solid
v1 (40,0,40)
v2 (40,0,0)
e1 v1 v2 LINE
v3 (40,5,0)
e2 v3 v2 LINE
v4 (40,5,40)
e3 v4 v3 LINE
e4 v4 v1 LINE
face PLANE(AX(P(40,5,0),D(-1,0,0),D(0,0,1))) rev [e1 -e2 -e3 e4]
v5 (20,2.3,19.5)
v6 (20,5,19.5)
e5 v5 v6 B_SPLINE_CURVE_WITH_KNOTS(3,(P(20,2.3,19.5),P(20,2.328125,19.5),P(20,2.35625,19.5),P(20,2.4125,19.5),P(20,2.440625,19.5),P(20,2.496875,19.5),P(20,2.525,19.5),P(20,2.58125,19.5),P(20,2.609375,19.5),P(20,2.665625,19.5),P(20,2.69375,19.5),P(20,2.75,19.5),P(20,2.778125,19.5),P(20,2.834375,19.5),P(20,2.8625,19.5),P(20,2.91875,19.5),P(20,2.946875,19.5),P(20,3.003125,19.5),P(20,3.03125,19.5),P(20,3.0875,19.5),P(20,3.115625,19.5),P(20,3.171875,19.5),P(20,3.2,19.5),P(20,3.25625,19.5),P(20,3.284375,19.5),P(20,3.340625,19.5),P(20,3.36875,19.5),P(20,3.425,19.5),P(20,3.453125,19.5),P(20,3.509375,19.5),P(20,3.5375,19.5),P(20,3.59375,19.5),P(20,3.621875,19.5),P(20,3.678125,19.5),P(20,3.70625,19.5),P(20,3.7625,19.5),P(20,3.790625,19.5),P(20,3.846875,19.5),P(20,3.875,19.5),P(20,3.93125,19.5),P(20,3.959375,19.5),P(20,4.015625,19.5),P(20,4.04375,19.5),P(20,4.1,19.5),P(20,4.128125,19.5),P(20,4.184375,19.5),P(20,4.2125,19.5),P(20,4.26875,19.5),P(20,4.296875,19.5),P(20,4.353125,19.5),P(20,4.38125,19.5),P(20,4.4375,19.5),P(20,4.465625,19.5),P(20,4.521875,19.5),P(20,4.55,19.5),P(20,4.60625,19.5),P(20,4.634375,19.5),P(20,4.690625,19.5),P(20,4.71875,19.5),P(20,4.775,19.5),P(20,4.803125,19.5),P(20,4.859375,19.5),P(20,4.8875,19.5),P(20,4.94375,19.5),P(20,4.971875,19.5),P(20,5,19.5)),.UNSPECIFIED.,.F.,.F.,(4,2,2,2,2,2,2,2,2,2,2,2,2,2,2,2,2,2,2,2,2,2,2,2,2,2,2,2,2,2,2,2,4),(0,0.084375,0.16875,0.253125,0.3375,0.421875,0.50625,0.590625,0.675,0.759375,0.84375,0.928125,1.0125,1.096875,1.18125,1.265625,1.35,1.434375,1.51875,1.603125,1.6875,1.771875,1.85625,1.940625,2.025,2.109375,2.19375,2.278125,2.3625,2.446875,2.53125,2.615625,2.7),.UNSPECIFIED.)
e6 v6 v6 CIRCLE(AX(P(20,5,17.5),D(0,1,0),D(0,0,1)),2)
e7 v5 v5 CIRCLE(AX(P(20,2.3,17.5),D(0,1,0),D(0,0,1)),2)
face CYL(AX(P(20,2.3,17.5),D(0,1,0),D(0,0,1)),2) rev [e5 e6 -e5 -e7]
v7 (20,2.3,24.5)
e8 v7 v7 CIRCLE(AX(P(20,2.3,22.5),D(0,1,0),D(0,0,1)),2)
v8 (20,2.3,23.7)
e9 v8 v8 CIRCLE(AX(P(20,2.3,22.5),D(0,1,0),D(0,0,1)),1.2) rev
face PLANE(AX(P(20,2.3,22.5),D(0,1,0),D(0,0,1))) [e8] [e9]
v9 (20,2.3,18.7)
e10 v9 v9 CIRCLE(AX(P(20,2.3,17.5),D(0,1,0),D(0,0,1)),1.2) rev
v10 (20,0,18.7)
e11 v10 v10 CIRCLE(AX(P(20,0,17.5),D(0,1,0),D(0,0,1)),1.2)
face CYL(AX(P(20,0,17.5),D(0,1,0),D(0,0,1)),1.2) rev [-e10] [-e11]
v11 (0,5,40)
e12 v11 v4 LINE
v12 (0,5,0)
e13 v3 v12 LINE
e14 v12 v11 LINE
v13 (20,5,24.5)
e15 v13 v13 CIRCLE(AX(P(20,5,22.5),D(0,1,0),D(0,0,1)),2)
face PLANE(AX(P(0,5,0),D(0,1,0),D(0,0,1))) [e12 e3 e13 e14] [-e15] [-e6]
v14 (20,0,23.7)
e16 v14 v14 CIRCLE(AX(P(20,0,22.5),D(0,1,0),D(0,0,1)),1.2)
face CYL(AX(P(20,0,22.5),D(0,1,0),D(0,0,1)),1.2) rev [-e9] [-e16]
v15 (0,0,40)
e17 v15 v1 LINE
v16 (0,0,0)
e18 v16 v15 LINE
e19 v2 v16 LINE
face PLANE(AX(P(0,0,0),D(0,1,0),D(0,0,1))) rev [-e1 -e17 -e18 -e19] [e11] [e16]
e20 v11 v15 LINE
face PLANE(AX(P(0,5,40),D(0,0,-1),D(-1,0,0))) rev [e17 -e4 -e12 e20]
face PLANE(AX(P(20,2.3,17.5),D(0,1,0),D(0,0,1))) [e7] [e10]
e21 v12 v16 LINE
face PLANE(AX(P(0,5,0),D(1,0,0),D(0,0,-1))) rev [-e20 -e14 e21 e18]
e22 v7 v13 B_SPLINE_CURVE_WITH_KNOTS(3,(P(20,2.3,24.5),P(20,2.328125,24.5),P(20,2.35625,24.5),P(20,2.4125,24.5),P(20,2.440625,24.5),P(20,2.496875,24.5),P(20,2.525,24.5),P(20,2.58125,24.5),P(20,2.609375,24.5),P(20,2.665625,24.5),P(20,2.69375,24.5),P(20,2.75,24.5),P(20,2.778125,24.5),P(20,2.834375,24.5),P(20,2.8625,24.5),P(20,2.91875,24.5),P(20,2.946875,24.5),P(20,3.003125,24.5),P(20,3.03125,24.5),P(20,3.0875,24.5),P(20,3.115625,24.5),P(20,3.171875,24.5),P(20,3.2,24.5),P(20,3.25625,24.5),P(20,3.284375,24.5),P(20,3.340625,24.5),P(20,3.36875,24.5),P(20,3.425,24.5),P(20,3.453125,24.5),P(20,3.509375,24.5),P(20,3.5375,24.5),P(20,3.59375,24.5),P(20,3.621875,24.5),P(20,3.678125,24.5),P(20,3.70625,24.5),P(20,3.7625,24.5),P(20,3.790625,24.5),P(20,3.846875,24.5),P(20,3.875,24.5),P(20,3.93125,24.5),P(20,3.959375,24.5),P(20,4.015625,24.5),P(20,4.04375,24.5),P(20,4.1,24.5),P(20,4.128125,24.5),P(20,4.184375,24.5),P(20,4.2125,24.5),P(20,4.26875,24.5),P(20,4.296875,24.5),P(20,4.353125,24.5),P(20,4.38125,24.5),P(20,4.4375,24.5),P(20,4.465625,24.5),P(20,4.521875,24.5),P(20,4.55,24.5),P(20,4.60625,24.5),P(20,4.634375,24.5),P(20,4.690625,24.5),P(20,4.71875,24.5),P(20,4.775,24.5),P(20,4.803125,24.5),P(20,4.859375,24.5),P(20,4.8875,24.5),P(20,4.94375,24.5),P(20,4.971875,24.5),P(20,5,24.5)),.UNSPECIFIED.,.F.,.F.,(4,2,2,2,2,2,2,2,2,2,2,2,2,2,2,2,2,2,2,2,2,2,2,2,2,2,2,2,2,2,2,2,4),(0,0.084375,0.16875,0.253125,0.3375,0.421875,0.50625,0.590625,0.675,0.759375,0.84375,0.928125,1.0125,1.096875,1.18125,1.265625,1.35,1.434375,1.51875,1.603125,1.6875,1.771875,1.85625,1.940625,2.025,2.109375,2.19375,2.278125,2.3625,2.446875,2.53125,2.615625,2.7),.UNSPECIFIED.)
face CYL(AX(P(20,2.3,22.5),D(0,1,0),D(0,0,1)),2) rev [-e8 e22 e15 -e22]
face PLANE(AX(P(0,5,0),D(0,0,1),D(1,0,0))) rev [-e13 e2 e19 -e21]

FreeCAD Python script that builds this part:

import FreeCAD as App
import Part
import Sketcher
Q = App.Units.Quantity

doc = App.newDocument("Part")
params = doc.addObject("Spreadsheet::Sheet", "Params")
for row, (alias, value) in enumerate([
    ("sketch1_width", "40 mm"),
    ("pad1_length", "5 mm"),
    ("sketch2_diameter", "2.4 mm"),
    ("sketch3_diameter", "4 mm"),
    ("pocket2_length", "2.7 mm"),
], start=1):
    params.set(f"A{row}", alias)
    params.set(f"B{row}", "=" + value)
    params.setAlias(f"B{row}", alias)

body = doc.addObject("PartDesign::Body", "Body")

# Sketch on XZ plane
sketch1 = doc.addObject("Sketcher::SketchObject", "Sketch")
body.addObject(sketch1)
sketch1.AttachmentSupport = (doc.XZ_Plane, [""])
sketch1.MapMode = "FlatFace"
sketch1.addGeometry(Part.LineSegment(App.Vector(0, 0, 0), App.Vector(0, 40, 0)), False)
sketch1.addGeometry(Part.LineSegment(App.Vector(0, 40, 0), App.Vector(40, 40, 0)), False)
sketch1.addGeometry(Part.LineSegment(App.Vector(40, 40, 0), App.Vector(40, 0, 0)), False)
sketch1.addGeometry(Part.LineSegment(App.Vector(40, 0, 0), App.Vector(0, 0, 0)), False)
sketch1.addConstraint(Sketcher.Constraint("Coincident", 0, 2, 1, 1))
sketch1.addConstraint(Sketcher.Constraint("Coincident", 1, 2, 2, 1))
sketch1.addConstraint(Sketcher.Constraint("Coincident", 2, 2, 3, 1))
sketch1.addConstraint(Sketcher.Constraint("Coincident", 3, 2, 0, 1))
sketch1.addConstraint(Sketcher.Constraint("Vertical", 0))
sketch1.addConstraint(Sketcher.Constraint("Horizontal", 1))
sketch1.addConstraint(Sketcher.Constraint("Vertical", 2))
sketch1.addConstraint(Sketcher.Constraint("Horizontal", 3))
sketch1.addConstraint(Sketcher.Constraint("Coincident", 3, 2, -1, 1))
sketch1.addConstraint(Sketcher.Constraint("Equal", 3, 0))
sketch1.addConstraint(Sketcher.Constraint("DistanceX", 1, 1, 1, 2, Q("40 mm")))
sketch1.setExpression("Constraints[10]", "Params.sketch1_width")
pad1 = doc.addObject("PartDesign::Pad", "Pad")
body.addObject(pad1)
pad1.Profile = sketch1
pad1.setExpression("Length", "Params.pad1_length")
pad1.Reversed = True

# Sketch on XZ plane
sketch2 = doc.addObject("Sketcher::SketchObject", "Sketch001")
body.addObject(sketch2)
sketch2.AttachmentSupport = (doc.XZ_Plane, [""])
sketch2.MapMode = "FlatFace"
sketch2.AttachmentOffset = App.Placement(App.Vector(0, 0, -5), App.Rotation())
sketch2.addGeometry(Part.Circle(App.Vector(20, 17.5, 0), App.Vector(0, 0, 1), 1.2), False)
sketch2.addGeometry(Part.Circle(App.Vector(20, 22.5, 0), App.Vector(0, 0, 1), 1.2), False)
sketch2.addConstraint(Sketcher.Constraint("Equal", 0, 1))
sketch2.addConstraint(Sketcher.Constraint("Vertical", 0, 3, 1, 3))
sketch2.addConstraint(Sketcher.Constraint("Diameter", 0, Q("2.4 mm")))
sketch2.addConstraint(Sketcher.Constraint("DistanceX", -1, 1, 0, 3, Q("20 mm")))
sketch2.addConstraint(Sketcher.Constraint("DistanceY", 0, 3, 1, 3, Q("5 mm")))
sketch2.addConstraint(Sketcher.Constraint("DistanceY", -1, 1, 0, 3, Q("17.5 mm")))
sketch2.setExpression("Constraints[2]", "Params.sketch2_diameter")
pocket1 = doc.addObject("PartDesign::Pocket", "Pocket")
body.addObject(pocket1)
pocket1.Profile = sketch2
pocket1.Type = "ThroughAll"
pocket1.Reversed = True

# Sketch on XZ plane
sketch3 = doc.addObject("Sketcher::SketchObject", "Sketch002")
body.addObject(sketch3)
sketch3.AttachmentSupport = (doc.XZ_Plane, [""])
sketch3.MapMode = "FlatFace"
sketch3.AttachmentOffset = App.Placement(App.Vector(0, 0, -5), App.Rotation())
sketch3.addGeometry(Part.Circle(App.Vector(20, 17.5, 0), App.Vector(0, 0, 1), 2), False)
sketch3.addGeometry(Part.Circle(App.Vector(20, 22.5, 0), App.Vector(0, 0, 1), 2), False)
sketch3.addConstraint(Sketcher.Constraint("Equal", 0, 1))
sketch3.addConstraint(Sketcher.Constraint("Vertical", 0, 3, 1, 3))
sketch3.addConstraint(Sketcher.Constraint("Diameter", 0, Q("4 mm")))
sketch3.addConstraint(Sketcher.Constraint("DistanceX", -1, 1, 0, 3, Q("20 mm")))
sketch3.addConstraint(Sketcher.Constraint("DistanceY", 0, 3, 1, 3, Q("5 mm")))
sketch3.addConstraint(Sketcher.Constraint("DistanceY", -1, 1, 0, 3, Q("17.5 mm")))
sketch3.setExpression("Constraints[2]", "Params.sketch3_diameter")
pocket2 = doc.addObject("PartDesign::Pocket", "Pocket001")
body.addObject(pocket2)
pocket2.Profile = sketch3
pocket2.setExpression("Length", "Params.pocket2_length")
pocket2.Reversed = True

doc.recompute()
